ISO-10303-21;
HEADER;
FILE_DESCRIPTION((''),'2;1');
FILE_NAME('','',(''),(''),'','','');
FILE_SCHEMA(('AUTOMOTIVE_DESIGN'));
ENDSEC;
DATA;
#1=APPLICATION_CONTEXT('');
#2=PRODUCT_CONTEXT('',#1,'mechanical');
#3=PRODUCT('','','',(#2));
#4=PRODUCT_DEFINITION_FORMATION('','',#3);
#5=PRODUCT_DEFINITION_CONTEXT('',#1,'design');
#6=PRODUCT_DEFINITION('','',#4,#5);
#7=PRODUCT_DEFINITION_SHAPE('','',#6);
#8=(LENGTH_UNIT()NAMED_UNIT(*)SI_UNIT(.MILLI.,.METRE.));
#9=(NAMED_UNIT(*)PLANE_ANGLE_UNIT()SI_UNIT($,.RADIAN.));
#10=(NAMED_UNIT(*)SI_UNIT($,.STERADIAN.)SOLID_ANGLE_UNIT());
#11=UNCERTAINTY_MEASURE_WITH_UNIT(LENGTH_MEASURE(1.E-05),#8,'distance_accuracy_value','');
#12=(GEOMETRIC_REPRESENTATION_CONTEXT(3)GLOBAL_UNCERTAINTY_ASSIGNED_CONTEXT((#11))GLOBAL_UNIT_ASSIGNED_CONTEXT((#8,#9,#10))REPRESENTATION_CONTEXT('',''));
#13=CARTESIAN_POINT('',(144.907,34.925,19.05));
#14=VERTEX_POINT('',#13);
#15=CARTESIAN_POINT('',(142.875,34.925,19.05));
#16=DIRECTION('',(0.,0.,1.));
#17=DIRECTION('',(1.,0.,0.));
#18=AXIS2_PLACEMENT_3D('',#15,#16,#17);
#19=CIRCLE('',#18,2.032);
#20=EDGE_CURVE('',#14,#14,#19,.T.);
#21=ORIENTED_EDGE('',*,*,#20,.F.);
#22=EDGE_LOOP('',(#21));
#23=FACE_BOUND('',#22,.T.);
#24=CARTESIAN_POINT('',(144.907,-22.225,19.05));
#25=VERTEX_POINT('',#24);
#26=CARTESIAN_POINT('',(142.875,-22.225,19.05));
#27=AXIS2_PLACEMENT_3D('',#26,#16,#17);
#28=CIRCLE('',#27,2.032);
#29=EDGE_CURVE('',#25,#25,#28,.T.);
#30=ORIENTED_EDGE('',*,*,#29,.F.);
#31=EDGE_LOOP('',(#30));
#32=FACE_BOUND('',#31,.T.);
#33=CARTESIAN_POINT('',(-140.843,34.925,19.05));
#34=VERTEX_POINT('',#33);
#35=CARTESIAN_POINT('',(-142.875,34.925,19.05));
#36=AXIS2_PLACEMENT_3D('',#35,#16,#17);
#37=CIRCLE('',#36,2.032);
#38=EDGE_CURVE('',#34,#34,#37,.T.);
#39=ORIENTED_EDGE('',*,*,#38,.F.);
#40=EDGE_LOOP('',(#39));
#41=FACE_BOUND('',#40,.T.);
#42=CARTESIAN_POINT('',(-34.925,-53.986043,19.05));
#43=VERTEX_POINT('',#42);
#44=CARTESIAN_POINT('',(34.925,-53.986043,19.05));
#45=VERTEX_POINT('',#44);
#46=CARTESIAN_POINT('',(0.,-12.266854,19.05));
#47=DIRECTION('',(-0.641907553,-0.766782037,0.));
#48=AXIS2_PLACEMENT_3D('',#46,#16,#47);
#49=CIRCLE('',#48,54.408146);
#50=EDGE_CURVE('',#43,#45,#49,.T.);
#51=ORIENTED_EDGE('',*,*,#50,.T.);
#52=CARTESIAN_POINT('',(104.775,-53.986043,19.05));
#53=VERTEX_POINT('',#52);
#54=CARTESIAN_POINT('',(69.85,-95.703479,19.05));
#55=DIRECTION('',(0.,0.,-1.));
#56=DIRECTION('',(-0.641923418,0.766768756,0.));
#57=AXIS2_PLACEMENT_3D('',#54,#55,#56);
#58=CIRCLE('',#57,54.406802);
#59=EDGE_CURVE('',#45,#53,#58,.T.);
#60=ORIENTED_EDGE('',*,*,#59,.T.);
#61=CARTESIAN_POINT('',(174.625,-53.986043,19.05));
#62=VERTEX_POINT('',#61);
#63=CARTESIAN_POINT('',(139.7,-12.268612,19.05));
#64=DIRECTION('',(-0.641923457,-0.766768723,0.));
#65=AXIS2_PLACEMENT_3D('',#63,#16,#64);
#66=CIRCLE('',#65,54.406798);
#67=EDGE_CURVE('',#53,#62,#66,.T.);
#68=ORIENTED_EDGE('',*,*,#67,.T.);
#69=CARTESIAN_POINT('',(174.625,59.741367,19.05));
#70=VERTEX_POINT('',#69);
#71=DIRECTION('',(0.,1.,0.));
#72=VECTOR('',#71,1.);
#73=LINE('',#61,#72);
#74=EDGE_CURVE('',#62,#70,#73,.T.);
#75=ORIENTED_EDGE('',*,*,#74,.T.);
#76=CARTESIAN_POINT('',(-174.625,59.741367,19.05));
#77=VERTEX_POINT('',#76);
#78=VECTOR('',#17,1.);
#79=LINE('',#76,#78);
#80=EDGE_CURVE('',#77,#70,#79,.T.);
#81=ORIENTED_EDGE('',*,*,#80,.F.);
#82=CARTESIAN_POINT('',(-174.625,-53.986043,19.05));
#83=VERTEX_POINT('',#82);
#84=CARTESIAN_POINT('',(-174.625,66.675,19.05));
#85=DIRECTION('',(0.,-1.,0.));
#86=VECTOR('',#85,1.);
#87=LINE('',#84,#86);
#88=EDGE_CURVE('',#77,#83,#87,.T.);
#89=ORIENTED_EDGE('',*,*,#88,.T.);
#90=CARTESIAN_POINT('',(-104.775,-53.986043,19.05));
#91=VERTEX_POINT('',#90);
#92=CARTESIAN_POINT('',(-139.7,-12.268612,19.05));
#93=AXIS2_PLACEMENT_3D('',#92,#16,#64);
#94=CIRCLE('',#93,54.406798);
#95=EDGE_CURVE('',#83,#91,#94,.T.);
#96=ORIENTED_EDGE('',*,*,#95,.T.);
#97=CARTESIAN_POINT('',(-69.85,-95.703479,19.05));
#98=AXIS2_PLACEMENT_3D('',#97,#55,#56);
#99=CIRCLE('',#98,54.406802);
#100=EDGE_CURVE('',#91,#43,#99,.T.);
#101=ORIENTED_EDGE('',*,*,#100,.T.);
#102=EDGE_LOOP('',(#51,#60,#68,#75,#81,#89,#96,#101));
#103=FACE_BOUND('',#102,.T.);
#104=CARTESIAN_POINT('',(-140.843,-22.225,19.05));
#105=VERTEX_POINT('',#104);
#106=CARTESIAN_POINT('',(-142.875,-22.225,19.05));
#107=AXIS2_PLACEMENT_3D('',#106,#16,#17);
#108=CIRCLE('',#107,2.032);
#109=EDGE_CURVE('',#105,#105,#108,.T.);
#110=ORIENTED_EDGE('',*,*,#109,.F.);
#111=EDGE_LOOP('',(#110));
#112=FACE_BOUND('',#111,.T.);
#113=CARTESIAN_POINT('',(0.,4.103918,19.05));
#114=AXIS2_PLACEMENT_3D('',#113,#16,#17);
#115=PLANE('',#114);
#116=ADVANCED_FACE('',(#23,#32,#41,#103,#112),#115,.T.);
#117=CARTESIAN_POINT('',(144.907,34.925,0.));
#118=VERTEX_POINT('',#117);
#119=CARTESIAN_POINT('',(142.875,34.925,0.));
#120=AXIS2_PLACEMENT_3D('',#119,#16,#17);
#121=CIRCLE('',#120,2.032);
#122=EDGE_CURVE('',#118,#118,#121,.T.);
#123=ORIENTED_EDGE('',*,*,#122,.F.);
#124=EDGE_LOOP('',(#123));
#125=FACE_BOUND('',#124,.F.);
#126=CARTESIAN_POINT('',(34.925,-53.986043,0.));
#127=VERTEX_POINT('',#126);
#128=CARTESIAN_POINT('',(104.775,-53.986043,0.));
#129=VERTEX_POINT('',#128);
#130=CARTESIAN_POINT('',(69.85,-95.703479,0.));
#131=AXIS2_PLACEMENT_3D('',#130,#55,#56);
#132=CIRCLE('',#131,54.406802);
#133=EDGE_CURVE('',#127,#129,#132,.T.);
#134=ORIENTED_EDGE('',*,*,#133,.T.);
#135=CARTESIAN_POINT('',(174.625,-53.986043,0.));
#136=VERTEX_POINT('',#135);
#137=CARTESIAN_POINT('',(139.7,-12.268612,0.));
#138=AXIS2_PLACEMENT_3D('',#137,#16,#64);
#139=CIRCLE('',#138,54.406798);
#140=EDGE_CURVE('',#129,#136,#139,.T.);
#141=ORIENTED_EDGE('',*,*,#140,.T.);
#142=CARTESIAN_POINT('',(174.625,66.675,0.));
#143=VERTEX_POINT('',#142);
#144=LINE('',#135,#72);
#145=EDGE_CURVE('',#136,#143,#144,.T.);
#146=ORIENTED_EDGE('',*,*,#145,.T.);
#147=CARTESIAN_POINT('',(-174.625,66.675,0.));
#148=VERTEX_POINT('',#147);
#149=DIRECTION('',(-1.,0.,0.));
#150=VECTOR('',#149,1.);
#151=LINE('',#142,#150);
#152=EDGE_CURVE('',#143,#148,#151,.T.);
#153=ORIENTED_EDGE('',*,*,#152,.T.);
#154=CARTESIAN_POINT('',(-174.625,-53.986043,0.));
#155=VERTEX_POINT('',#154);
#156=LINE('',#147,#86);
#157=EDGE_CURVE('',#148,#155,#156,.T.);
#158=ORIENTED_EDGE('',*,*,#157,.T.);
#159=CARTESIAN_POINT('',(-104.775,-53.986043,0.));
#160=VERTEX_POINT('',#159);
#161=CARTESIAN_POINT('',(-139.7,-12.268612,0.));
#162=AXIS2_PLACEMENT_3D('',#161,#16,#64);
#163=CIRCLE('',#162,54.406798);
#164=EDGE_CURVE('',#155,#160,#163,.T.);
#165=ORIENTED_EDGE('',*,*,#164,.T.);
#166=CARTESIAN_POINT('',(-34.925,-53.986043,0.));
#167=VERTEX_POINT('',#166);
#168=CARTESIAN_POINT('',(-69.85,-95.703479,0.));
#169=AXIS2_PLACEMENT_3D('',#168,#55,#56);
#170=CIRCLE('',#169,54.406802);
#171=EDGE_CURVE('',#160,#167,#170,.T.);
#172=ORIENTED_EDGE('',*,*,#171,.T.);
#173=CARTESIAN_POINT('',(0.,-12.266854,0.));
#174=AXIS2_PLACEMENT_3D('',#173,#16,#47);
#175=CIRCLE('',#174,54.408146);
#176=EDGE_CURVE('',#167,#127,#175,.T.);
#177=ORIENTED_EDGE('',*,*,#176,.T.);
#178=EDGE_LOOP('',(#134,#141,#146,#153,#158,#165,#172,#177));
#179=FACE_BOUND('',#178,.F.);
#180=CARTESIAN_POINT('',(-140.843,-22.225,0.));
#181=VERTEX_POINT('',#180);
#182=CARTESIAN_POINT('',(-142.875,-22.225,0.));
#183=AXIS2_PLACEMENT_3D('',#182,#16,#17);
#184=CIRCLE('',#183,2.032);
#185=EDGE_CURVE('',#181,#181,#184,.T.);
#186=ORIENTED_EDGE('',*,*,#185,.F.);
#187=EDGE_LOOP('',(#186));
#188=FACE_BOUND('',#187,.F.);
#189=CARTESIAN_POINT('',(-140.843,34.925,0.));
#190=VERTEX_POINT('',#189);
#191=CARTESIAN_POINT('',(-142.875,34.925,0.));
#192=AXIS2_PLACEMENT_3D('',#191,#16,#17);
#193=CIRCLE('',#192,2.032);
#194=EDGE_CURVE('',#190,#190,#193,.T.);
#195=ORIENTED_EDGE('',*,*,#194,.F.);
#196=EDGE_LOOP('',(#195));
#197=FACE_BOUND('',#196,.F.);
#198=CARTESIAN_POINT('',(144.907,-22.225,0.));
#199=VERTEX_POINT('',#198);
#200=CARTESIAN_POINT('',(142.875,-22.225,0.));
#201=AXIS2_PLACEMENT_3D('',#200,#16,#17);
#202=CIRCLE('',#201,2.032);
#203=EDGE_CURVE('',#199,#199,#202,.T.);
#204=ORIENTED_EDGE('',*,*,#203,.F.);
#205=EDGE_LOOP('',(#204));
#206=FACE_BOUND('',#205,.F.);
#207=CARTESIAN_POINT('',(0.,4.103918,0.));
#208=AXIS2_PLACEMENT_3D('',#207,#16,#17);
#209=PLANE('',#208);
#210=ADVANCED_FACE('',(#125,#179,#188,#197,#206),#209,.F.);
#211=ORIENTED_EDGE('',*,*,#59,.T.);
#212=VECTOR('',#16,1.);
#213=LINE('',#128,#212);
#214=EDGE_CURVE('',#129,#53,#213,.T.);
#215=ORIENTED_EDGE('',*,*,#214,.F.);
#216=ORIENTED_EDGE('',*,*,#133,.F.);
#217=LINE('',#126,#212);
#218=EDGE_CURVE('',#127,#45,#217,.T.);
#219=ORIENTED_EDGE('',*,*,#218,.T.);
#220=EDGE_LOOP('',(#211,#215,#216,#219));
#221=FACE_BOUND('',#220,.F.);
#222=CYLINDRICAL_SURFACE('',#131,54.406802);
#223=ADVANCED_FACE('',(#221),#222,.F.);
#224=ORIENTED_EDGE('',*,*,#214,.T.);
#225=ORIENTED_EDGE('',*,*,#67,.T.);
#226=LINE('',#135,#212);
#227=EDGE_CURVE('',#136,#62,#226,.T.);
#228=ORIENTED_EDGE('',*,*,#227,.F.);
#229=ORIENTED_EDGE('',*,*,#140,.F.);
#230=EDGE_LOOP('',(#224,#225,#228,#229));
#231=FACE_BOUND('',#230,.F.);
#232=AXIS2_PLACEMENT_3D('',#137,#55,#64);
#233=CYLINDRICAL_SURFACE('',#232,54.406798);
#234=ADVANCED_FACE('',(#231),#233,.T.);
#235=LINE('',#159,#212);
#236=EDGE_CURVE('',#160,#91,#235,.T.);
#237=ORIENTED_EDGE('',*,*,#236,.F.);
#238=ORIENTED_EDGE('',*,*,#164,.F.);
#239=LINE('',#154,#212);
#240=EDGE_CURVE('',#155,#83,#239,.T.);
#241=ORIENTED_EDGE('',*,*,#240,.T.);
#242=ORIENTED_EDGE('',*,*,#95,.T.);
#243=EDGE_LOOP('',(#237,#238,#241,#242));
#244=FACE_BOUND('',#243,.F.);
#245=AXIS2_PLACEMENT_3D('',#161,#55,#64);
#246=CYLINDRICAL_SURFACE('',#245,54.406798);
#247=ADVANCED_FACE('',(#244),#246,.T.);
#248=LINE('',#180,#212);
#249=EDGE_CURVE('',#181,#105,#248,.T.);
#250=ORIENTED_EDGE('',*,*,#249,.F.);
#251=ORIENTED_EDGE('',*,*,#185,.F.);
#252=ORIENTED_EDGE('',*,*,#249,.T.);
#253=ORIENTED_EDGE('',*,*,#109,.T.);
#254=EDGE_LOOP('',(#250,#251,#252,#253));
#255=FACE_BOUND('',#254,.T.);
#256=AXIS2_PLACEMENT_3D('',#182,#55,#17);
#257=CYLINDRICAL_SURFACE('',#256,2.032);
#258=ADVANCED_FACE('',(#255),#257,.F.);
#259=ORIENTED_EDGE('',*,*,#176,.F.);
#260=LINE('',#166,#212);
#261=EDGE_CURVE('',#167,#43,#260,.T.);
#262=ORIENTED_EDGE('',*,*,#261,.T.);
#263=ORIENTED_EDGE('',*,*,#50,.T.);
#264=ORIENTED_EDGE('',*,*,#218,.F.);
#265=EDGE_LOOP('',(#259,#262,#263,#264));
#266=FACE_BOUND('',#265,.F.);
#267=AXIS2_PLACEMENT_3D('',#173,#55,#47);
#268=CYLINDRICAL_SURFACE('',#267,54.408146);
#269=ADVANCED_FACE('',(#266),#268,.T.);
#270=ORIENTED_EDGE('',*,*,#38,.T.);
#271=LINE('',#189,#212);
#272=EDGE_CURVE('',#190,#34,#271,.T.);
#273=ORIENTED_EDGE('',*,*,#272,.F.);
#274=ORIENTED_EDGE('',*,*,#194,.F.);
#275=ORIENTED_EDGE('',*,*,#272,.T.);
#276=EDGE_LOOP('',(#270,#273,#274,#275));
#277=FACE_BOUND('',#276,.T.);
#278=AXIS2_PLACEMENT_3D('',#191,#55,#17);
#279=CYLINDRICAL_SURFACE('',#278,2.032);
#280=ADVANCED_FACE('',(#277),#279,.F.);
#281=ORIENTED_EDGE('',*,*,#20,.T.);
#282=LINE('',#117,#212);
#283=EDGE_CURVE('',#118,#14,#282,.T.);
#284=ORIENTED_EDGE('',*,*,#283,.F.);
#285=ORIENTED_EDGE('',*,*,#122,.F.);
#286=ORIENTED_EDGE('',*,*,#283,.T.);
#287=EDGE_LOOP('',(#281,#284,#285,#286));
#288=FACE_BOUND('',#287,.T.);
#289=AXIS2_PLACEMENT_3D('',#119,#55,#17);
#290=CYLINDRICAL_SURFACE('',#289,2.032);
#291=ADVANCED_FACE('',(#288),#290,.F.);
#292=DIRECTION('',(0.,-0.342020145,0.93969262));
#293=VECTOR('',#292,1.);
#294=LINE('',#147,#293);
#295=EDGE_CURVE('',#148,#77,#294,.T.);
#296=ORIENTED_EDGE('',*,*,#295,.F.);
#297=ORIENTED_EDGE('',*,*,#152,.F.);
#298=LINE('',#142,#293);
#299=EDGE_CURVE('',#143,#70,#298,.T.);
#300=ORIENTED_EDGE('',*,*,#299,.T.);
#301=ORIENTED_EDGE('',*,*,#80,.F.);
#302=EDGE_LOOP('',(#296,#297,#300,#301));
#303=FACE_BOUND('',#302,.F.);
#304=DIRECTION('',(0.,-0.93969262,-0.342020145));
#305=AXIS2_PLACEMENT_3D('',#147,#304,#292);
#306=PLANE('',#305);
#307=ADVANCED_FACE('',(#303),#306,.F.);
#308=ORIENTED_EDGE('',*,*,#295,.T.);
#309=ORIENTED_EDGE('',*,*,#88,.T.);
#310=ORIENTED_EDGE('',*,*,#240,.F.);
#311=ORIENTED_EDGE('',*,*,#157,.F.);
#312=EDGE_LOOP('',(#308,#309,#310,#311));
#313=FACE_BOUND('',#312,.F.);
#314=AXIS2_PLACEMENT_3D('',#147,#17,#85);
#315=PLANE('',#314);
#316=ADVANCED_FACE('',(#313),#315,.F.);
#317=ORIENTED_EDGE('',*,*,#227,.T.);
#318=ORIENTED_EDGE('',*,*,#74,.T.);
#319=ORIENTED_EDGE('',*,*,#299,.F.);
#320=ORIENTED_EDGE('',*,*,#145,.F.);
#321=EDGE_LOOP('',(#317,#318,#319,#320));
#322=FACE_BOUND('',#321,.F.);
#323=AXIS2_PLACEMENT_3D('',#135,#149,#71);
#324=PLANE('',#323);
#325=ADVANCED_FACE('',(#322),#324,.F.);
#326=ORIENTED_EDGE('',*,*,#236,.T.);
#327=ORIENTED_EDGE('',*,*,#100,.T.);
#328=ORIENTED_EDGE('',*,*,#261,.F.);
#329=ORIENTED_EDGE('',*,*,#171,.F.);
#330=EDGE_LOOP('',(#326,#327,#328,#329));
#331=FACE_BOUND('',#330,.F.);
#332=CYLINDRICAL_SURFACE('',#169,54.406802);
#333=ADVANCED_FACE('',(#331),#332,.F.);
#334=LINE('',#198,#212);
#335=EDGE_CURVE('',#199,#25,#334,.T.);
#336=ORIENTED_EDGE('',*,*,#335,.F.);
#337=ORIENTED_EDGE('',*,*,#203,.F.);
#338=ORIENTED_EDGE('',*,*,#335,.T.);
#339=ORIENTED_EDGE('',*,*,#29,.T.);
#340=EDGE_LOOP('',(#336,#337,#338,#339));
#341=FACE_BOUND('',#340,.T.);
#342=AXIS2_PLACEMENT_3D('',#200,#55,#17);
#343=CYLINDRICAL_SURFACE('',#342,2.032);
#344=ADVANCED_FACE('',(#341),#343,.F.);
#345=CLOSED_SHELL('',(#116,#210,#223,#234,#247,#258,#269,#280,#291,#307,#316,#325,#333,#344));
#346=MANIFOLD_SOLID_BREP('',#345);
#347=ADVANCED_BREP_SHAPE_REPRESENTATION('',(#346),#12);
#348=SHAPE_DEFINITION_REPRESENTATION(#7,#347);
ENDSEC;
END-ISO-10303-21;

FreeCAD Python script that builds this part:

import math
import FreeCAD as App
import Part
import Sketcher

V = App.Vector
Q = App.Units.Quantity

doc = App.newDocument("Part")
body = doc.addObject("PartDesign::Body", "Body")

# Sketch on XY plane
sketch1 = body.newObject("Sketcher::SketchObject", "Sketch")
sketch1.AttachmentSupport = (doc.getObject("XY_Plane"), [""])
sketch1.MapMode = "FlatFace"
sketch1.addGeometry([
    Part.LineSegment(V(174.625, -53.986043, 0), V(174.625, 66.675, 0)),  # 0
    Part.LineSegment(V(174.625, 66.675, 0), V(-174.625, 66.675, 0)),  # 1
    Part.LineSegment(V(-174.625, 66.675, 0), V(-174.625, -53.986043, 0)),  # 2
    Part.ArcOfCircle(Part.Circle(V(-139.7, -12.268612, 0), V(0, 0, 1), 54.406798), math.radians(-129.935397), math.radians(-50.064603)),  # 3
    Part.ArcOfCircle(Part.Circle(V(-69.85, -95.703479, 0), V(0, 0, 1), 54.406802), math.radians(50.064606), math.radians(129.935394)),  # 4
    Part.ArcOfCircle(Part.Circle(V(0, -12.266854, 0), V(0, 0, 1), 54.408146), math.radians(-129.934208), math.radians(-50.065792)),  # 5
    Part.ArcOfCircle(Part.Circle(V(69.85, -95.703479, 0), V(0, 0, 1), 54.406802), math.radians(50.064606), math.radians(129.935394)),  # 6
    Part.ArcOfCircle(Part.Circle(V(139.7, -12.268612, 0), V(0, 0, 1), 54.406798), math.radians(-129.935397), math.radians(-50.064603)),  # 7
    Part.Circle(V(-142.875, -22.225, 0), V(0, 0, 1), 2.032),  # 8
    Part.Circle(V(142.875, -22.225, 0), V(0, 0, 1), 2.032),  # 9
    Part.Circle(V(-142.875, 34.925, 0), V(0, 0, 1), 2.032),  # 10
    Part.Circle(V(142.875, 34.925, 0), V(0, 0, 1), 2.032),  # 11
], False)
sketch1.addConstraint([
    Sketcher.Constraint("Coincident", 0, 2, 1, 1),
    Sketcher.Constraint("Coincident", 1, 2, 2, 1),
    Sketcher.Constraint("Coincident", 2, 2, 3, 1),
    Sketcher.Constraint("Tangent", 3, 2, 4, 2),
    Sketcher.Constraint("Coincident", 4, 1, 5, 1),
    Sketcher.Constraint("Coincident", 5, 2, 6, 2),
    Sketcher.Constraint("Tangent", 6, 1, 7, 1),
    Sketcher.Constraint("Coincident", 7, 2, 0, 1),
    Sketcher.Constraint("Vertical", 0),
    Sketcher.Constraint("Horizontal", 1),
    Sketcher.Constraint("Vertical", 2),
    Sketcher.Constraint("Equal", 4, 6),
    Sketcher.Constraint("Equal", 3, 7),
    Sketcher.Constraint("Equal", 8, 9),
    Sketcher.Constraint("Equal", 9, 10),
    Sketcher.Constraint("Equal", 10, 11),
    Sketcher.Constraint("Symmetric", 4, 3, 6, 3, -2),
    Sketcher.Constraint("Symmetric", 8, 3, 9, 3, -2),
    Sketcher.Constraint("Symmetric", 10, 3, 11, 3, -2),
    Sketcher.Constraint("Symmetric", 2, 2, 7, 2, -2),
    Sketcher.Constraint("Horizontal", 2, 2, 3, 2),
    Sketcher.Constraint("Horizontal", 3, 2, 4, 1),
    Sketcher.Constraint("Horizontal", 4, 1, 5, 2),
    Sketcher.Constraint("Vertical", 8, 3, 10, 3),
    Sketcher.Constraint("Diameter", 8, Q("0.16 in")),
    Sketcher.Constraint("Radius", 3, Q("2.1419999 in")),
    Sketcher.Constraint("Radius", 4, Q("2.1420001 in")),
    Sketcher.Constraint("DistanceX", 3, 3, 7, 3, Q("11 in")),
    Sketcher.Constraint("DistanceX", 1, 2, 1, 1, Q("13.75 in")),
    Sketcher.Constraint("DistanceY", 9, 3, 0, 2, Q("3.5 in")),
    Sketcher.Constraint("DistanceX", 8, 3, 3, 2, Q("1.5 in")),
    Sketcher.Constraint("DistanceY", 8, 3, 10, 3, Q("2.25 in")),
    Sketcher.Constraint("DistanceY", 8, 3, -1, 1, Q("0.875 in")),
    Sketcher.Constraint("Radius", 5, 54.408146),
    Sketcher.Constraint("DistanceY", 0, 1, 0, 2, 120.661043),
])
pad1 = body.newObject("PartDesign::Pad", "Pad")
pad1.Profile = sketch1
pad1.Length = Q("0.75 in")

# Sketch on YZ plane
sketch2 = body.newObject("Sketcher::SketchObject", "Sketch001")
sketch2.AttachmentSupport = (doc.getObject("YZ_Plane"), [""])
sketch2.MapMode = "FlatFace"
sketch2.AttachmentOffset = App.Placement(V(0, 0, -6.875 * 25.4), App.Rotation())
sketch2.addGeometry([
    Part.LineSegment(V(59.741367, 19.05, 0), V(66.675, 19.05, 0)),
    Part.LineSegment(V(66.675, 19.05, 0), V(66.675, 0, 0)),
    Part.LineSegment(V(66.675, 0, 0), V(59.741367, 19.05, 0)),
], False)
sketch2.addConstraint([
    Sketcher.Constraint("Coincident", 0, 2, 1, 1),
    Sketcher.Constraint("Coincident", 1, 2, 2, 1),
    Sketcher.Constraint("Coincident", 2, 2, 0, 1),
    Sketcher.Constraint("Horizontal", 0),
    Sketcher.Constraint("Vertical", 1),
    Sketcher.Constraint("PointOnObject", 1, 2, -1),
    Sketcher.Constraint("Angle", 2, Q("110 deg")),
    Sketcher.Constraint("DistanceY", 1, 2, 1, 1, Q("0.75 in")),
    Sketcher.Constraint("DistanceX", -1, 1, 0, 2, Q("2.625 in")),
])
pocket1 = body.newObject("PartDesign::Pocket", "Pocket")
pocket1.Profile = sketch2
pocket1.Length = Q("13.75 in")
pocket1.Reversed = True

doc.recompute()
